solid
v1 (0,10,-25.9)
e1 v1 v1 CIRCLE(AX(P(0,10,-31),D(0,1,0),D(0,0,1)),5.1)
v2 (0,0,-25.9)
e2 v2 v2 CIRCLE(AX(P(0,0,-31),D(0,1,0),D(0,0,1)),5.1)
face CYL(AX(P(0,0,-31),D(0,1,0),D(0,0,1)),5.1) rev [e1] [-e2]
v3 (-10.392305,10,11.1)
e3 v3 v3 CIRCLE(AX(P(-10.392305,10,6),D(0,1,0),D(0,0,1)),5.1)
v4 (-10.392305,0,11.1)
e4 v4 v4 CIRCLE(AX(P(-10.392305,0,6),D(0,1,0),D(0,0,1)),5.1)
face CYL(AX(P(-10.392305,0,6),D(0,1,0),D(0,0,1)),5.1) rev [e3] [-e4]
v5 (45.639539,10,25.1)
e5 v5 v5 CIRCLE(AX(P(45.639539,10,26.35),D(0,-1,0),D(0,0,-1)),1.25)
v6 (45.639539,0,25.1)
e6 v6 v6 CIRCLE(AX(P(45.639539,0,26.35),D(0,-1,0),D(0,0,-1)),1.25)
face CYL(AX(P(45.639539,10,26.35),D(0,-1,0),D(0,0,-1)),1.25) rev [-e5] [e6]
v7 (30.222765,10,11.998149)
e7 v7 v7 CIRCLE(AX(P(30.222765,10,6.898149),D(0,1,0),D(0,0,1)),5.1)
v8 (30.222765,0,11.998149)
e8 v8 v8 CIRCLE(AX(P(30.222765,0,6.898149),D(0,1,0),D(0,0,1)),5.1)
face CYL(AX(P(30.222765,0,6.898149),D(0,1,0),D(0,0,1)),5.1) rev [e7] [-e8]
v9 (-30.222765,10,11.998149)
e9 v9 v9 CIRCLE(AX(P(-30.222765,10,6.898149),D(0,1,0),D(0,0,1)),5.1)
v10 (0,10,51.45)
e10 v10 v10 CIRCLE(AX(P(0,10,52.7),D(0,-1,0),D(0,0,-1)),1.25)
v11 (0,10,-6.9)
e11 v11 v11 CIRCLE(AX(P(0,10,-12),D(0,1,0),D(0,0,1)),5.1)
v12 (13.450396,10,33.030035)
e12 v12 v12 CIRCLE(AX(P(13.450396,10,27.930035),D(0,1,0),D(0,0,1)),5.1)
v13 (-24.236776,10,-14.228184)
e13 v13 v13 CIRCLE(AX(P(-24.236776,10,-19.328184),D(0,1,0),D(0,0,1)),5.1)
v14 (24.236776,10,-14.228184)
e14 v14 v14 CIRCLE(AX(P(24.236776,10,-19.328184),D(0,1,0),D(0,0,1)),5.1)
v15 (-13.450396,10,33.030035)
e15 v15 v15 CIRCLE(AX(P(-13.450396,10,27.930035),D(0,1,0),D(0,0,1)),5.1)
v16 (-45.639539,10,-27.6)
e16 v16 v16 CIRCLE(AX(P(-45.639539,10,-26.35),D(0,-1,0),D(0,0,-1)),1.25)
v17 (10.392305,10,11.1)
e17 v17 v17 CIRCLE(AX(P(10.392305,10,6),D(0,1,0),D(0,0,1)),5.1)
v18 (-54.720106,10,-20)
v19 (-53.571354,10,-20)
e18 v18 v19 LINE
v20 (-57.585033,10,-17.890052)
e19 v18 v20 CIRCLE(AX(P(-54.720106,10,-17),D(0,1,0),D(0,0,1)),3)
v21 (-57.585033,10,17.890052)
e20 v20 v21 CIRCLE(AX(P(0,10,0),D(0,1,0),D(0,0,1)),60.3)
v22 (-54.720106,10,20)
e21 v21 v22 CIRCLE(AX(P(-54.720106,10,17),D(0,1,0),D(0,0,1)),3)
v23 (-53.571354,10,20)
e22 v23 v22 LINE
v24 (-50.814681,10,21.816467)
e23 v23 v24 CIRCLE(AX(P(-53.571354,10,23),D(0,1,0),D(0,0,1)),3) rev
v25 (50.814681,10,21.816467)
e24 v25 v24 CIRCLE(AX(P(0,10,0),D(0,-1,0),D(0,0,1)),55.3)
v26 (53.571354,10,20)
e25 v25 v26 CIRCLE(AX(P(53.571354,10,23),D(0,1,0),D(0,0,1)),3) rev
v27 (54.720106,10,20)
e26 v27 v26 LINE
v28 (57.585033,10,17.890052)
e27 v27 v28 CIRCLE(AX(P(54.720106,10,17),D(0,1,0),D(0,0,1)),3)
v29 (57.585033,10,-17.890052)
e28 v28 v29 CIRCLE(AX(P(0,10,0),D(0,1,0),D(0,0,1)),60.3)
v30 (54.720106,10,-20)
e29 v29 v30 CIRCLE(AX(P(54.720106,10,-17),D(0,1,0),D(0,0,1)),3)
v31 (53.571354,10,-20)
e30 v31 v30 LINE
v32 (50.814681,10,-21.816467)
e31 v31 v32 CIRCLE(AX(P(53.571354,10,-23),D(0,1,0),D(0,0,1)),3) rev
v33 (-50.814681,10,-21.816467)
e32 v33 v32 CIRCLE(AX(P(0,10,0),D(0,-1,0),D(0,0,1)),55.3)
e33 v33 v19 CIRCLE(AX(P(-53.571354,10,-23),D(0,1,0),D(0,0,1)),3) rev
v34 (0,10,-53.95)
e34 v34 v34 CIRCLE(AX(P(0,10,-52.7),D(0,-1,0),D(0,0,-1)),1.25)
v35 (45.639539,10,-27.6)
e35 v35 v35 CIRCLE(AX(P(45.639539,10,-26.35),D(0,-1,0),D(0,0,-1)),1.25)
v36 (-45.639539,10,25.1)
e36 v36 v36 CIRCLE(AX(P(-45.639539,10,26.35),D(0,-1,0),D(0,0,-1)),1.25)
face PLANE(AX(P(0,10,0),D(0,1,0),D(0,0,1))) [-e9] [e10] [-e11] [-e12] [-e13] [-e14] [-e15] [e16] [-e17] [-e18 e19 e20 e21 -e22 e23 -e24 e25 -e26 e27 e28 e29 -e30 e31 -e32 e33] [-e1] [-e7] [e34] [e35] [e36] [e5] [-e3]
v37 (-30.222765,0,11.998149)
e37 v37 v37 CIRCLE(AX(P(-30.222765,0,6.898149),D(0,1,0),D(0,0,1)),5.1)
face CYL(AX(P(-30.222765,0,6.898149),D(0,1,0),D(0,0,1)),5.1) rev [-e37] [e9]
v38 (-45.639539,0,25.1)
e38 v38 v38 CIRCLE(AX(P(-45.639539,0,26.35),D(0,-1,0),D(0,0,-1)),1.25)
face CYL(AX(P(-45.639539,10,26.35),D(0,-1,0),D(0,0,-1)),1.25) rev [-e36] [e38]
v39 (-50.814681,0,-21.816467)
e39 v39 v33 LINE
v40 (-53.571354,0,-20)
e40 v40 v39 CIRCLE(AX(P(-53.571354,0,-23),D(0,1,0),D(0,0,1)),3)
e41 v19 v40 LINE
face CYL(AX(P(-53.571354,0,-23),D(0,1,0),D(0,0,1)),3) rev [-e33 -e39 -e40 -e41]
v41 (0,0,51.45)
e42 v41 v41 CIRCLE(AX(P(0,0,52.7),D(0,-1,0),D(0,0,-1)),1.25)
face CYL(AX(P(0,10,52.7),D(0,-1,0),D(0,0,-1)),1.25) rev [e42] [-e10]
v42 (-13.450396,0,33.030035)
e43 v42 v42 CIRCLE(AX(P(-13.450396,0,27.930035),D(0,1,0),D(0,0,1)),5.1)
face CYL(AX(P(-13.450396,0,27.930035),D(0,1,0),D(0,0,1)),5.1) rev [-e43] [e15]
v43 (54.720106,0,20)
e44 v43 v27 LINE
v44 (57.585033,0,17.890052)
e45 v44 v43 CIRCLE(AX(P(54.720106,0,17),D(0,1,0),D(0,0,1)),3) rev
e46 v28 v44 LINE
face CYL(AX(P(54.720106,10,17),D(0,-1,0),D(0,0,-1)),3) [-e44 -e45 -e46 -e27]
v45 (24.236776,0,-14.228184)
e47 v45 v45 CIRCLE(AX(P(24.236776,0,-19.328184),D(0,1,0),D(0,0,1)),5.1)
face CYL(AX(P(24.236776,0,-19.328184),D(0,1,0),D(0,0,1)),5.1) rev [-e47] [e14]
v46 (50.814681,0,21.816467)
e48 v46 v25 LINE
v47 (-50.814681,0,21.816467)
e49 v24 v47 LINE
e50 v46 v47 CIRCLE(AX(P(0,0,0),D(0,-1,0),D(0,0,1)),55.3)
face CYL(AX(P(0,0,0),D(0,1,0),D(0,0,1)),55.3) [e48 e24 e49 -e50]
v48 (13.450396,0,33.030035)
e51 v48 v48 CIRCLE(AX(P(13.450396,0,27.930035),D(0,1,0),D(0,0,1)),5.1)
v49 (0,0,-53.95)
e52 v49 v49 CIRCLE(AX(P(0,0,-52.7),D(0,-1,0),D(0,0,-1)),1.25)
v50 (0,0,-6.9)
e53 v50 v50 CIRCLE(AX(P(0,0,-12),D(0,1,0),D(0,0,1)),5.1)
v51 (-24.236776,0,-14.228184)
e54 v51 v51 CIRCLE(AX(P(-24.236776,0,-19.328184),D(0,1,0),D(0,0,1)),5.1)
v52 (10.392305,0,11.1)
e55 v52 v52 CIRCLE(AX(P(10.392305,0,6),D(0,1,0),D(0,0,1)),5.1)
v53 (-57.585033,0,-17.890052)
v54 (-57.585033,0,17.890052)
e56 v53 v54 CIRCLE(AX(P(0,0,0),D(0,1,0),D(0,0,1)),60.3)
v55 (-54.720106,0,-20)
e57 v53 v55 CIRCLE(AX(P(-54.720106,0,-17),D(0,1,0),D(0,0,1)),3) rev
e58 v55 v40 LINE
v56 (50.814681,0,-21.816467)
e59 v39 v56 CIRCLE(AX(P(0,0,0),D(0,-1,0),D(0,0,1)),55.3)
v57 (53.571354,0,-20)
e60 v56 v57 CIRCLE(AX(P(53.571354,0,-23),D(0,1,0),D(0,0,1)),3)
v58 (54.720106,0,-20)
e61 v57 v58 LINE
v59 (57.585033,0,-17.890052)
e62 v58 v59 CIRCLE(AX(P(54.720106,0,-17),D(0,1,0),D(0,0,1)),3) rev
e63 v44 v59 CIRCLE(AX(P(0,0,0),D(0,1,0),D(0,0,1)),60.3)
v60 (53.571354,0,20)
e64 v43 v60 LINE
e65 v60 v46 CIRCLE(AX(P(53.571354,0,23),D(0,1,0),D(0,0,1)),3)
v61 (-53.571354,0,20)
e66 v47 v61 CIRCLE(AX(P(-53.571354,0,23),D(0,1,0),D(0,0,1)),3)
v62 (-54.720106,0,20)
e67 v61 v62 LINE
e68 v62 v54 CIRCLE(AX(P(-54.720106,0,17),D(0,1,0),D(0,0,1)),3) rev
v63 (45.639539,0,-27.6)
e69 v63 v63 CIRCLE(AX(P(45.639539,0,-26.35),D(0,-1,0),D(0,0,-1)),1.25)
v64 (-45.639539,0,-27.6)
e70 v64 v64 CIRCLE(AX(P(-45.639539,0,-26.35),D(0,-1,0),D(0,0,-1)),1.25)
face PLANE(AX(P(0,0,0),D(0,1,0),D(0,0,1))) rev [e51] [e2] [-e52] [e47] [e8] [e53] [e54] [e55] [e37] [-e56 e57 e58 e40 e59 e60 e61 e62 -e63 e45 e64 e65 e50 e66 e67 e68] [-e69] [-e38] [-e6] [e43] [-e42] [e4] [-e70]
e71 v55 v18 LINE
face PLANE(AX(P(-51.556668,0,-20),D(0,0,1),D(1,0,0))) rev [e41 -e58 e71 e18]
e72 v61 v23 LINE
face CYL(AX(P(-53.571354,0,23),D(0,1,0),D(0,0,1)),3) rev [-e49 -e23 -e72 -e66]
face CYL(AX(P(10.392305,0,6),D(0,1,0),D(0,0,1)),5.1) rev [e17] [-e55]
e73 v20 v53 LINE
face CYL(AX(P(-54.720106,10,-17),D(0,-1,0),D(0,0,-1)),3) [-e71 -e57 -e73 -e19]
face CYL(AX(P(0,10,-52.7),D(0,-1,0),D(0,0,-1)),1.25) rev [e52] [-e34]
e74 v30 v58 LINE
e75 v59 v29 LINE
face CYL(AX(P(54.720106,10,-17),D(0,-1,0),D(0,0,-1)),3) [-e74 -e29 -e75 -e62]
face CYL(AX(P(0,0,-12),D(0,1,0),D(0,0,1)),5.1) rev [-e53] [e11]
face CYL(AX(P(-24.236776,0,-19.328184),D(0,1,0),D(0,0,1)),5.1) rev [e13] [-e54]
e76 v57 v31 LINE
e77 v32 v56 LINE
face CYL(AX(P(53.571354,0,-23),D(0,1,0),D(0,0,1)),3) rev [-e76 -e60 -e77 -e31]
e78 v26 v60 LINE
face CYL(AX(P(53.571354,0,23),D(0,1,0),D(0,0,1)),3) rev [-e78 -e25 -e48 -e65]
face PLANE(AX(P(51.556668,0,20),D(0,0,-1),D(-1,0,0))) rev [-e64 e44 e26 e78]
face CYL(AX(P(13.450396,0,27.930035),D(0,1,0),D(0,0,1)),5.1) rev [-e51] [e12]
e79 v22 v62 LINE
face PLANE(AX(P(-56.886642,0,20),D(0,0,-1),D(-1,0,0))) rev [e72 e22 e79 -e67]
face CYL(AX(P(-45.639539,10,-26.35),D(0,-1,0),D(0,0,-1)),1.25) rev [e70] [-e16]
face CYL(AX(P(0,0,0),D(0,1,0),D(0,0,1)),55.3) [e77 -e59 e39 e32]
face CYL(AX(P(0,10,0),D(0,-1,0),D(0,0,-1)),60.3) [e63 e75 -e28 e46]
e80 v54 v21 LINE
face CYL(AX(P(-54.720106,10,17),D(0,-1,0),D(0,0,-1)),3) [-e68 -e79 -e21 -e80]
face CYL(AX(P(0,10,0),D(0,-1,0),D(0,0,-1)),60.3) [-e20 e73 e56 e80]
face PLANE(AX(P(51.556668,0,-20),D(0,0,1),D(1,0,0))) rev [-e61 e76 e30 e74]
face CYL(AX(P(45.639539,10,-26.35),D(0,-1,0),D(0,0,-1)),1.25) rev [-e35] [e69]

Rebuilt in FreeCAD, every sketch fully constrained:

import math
import FreeCAD as App
import Part
import Sketcher


def edges_at(feature, points):
    """Names of the edges that pass closest to the given points."""
    edges = feature.Shape.Edges
    near = lambda p: min(range(len(edges)), key=lambda i: edges[i].distToShape(Part.Vertex(*p))[0])
    return sorted({f"Edge{near(p) + 1}" for p in points})

doc = App.newDocument("Part")
params = doc.addObject("Spreadsheet::Sheet", "Params")
for row, (alias, value) in enumerate([
    ("sketch1_diameter", "120.6 mm"),
    ("pad1_length", "10 mm"),
    ("sketch2_radius", "55.3 mm"),
    ("sketch2_radius2", "60.3 mm"),
    ("fillet_radius", "3 mm"),
    ("sketch3_diameter", "2.5 mm"),
    ("sketch4_diameter", "10.2 mm"),
    ("sketch5_diameter", "10.2 mm"),
], start=1):
    params.set(f"A{row}", alias)
    params.set(f"B{row}", "=" + value)
    params.setAlias(f"B{row}", alias)

body = doc.addObject("PartDesign::Body", "Body")

# Sketch on XZ plane
sketch1 = doc.addObject("Sketcher::SketchObject", "Sketch")
body.addObject(sketch1)
sketch1.AttachmentSupport = (doc.XZ_Plane, [""])
sketch1.MapMode = "FlatFace"
sketch1.addGeometry(Part.Circle(App.Vector(0, 0, 0), App.Vector(0, 0, 1), 60.3), False)
sketch1.addConstraint(Sketcher.Constraint("Coincident", 0, 3, -1, 1))
sketch1.addConstraint(Sketcher.Constraint("Diameter", 0, 120.6))
sketch1.setExpression("Constraints[1]", "Params.sketch1_diameter")
pad1 = doc.addObject("PartDesign::Pad", "Pad")
body.addObject(pad1)
pad1.Profile = sketch1
pad1.setExpression("Length", "Params.pad1_length")
pad1.Reversed = True

# Sketch on XZ plane
sketch2 = doc.addObject("Sketcher::SketchObject", "Sketch001")
body.addObject(sketch2)
sketch2.AttachmentSupport = (doc.XZ_Plane, [""])
sketch2.MapMode = "FlatFace"
sketch2.AttachmentOffset = App.Placement(App.Vector(0, 0, -10), App.Rotation())
sketch2.addGeometry(Part.LineSegment(App.Vector(-56.886642, -20, 0), App.Vector(-51.556668, -20, 0)), False)
sketch2.addGeometry(Part.ArcOfCircle(Part.Circle(App.Vector(0, 0, 0), App.Vector(0, 0, 1), 55.3), math.radians(-158.797598), math.radians(-21.202402)), False)
sketch2.addGeometry(Part.LineSegment(App.Vector(51.556668, -20, 0), App.Vector(56.886642, -20, 0)), False)
sketch2.addGeometry(Part.ArcOfCircle(Part.Circle(App.Vector(0, 0, 0), App.Vector(0, 0, 1), 60.3), math.radians(-160.62953), math.radians(-19.37047)), False)
sketch2.addGeometry(Part.LineSegment(App.Vector(-51.556668, 20, 0), App.Vector(-56.886642, 20, 0)), False)
sketch2.addGeometry(Part.ArcOfCircle(Part.Circle(App.Vector(0, 0, 0), App.Vector(0, 0, 1), 60.3), math.radians(19.37047), math.radians(160.62953)), False)
sketch2.addGeometry(Part.LineSegment(App.Vector(56.886642, 20, 0), App.Vector(51.556668, 20, 0)), False)
sketch2.addGeometry(Part.ArcOfCircle(Part.Circle(App.Vector(0, 0, 0), App.Vector(0, 0, 1), 55.3), math.radians(21.202402), math.radians(158.797598)), False)
sketch2.addConstraint(Sketcher.Constraint("Coincident", 0, 2, 1, 1))
sketch2.addConstraint(Sketcher.Constraint("Coincident", 1, 2, 2, 1))
sketch2.addConstraint(Sketcher.Constraint("Coincident", 2, 2, 3, 2))
sketch2.addConstraint(Sketcher.Constraint("Coincident", 3, 1, 0, 1))
sketch2.addConstraint(Sketcher.Constraint("Coincident", 4, 2, 5, 2))
sketch2.addConstraint(Sketcher.Constraint("Coincident", 5, 1, 6, 1))
sketch2.addConstraint(Sketcher.Constraint("Coincident", 6, 2, 7, 1))
sketch2.addConstraint(Sketcher.Constraint("Coincident", 7, 2, 4, 1))
sketch2.addConstraint(Sketcher.Constraint("Horizontal", 0))
sketch2.addConstraint(Sketcher.Constraint("Horizontal", 2))
sketch2.addConstraint(Sketcher.Constraint("Horizontal", 4))
sketch2.addConstraint(Sketcher.Constraint("Horizontal", 6))
sketch2.addConstraint(Sketcher.Constraint("Coincident", 1, 3, -1, 1))
sketch2.addConstraint(Sketcher.Constraint("Coincident", 3, 3, -1, 1))
sketch2.addConstraint(Sketcher.Constraint("Coincident", 5, 3, -1, 1))
sketch2.addConstraint(Sketcher.Constraint("Coincident", 7, 3, -1, 1))
sketch2.addConstraint(Sketcher.Constraint("Equal", 3, 5))
sketch2.addConstraint(Sketcher.Constraint("Equal", 1, 7))
sketch2.addConstraint(Sketcher.Constraint("Horizontal", 0, 2, 1, 2))
sketch2.addConstraint(Sketcher.Constraint("Horizontal", 4, 2, 5, 1))
sketch2.addConstraint(Sketcher.Constraint("Vertical", 3, 1, 4, 2))
sketch2.addConstraint(Sketcher.Constraint("Radius", 1, 55.3))
sketch2.addConstraint(Sketcher.Constraint("Radius", 3, 60.3))
sketch2.addConstraint(Sketcher.Constraint("DistanceY", 0, 2, -1, 1, 20.0))
sketch2.setExpression("Constraints[21]", "Params.sketch2_radius")
sketch2.setExpression("Constraints[22]", "Params.sketch2_radius2")
pocket1 = doc.addObject("PartDesign::Pocket", "Pocket")
body.addObject(pocket1)
pocket1.Profile = sketch2
pocket1.Type = "ThroughAll"
pocket1.Reversed = True
doc.recompute()

fillet = doc.addObject("PartDesign::Fillet", "Fillet")
body.addObject(fillet)
fillet.Base = (pocket1, edges_at(pocket1, [
    (51.557, 5, -20),
    (-51.557, 5, -20),
    (-56.887, 5, -20),
    (56.887, 5, -20),
    (-51.557, 5, 20),
    (51.557, 5, 20),
    (56.887, 5, 20),
    (-56.887, 5, 20),
]))
fillet.setExpression("Radius", "Params.fillet_radius")

# Sketch on XZ plane
sketch3 = doc.addObject("Sketcher::SketchObject", "Sketch002")
body.addObject(sketch3)
sketch3.AttachmentSupport = (doc.XZ_Plane, [""])
sketch3.MapMode = "FlatFace"
sketch3.addGeometry(Part.Circle(App.Vector(0, -52.7, 0), App.Vector(0, 0, 1), 1.25), False)
sketch3.addGeometry(Part.Circle(App.Vector(-45.639539, -26.35, 0), App.Vector(0, 0, 1), 1.25), False)
sketch3.addGeometry(Part.Circle(App.Vector(-45.639539, 26.35, 0), App.Vector(0, 0, 1), 1.25), False)
sketch3.addGeometry(Part.Circle(App.Vector(0, 52.7, 0), App.Vector(0, 0, 1), 1.25), False)
sketch3.addGeometry(Part.Circle(App.Vector(45.639539, 26.35, 0), App.Vector(0, 0, 1), 1.25), False)
sketch3.addGeometry(Part.Circle(App.Vector(45.639539, -26.35, 0), App.Vector(0, 0, 1), 1.25), False)
sketch3.addConstraint(Sketcher.Constraint("Equal", 0, 1))
sketch3.addConstraint(Sketcher.Constraint("Equal", 1, 2))
sketch3.addConstraint(Sketcher.Constraint("Equal", 2, 3))
sketch3.addConstraint(Sketcher.Constraint("Equal", 3, 4))
sketch3.addConstraint(Sketcher.Constraint("Equal", 4, 5))
sketch3.addConstraint(Sketcher.Constraint("Symmetric", 0, 3, 3, 3, -1, 1))
sketch3.addConstraint(Sketcher.Constraint("Symmetric", 1, 3, 4, 3, -1, 1))
sketch3.addConstraint(Sketcher.Constraint("Symmetric", 2, 3, 5, 3, -1, 1))
sketch3.addConstraint(Sketcher.Constraint("Symmetric", 2, 3, 4, 3, -2))
sketch3.addConstraint(Sketcher.Constraint("PointOnObject", 0, 3, -2))
sketch3.addConstraint(Sketcher.Constraint("Diameter", 0, 2.5))
sketch3.addConstraint(Sketcher.Constraint("DistanceY", 0, 3, -1, 1, 52.7))
sketch3.addConstraint(Sketcher.Constraint("DistanceY", 1, 3, 2, 3, 52.7))
sketch3.addConstraint(Sketcher.Constraint("DistanceX", 1, 3, -1, 1, 45.639539))
sketch3.setExpression("Constraints[10]", "Params.sketch3_diameter")
pocket2 = doc.addObject("PartDesign::Pocket", "Pocket001")
body.addObject(pocket2)
pocket2.Profile = sketch3
pocket2.Type = "ThroughAll"

# Sketch on XZ plane
sketch4 = doc.addObject("Sketcher::SketchObject", "Sketch003")
body.addObject(sketch4)
sketch4.AttachmentSupport = (doc.XZ_Plane, [""])
sketch4.MapMode = "FlatFace"
sketch4.AttachmentOffset = App.Placement(App.Vector(0, 0, -10), App.Rotation())
sketch4.addGeometry(Part.Circle(App.Vector(0, -31, 0), App.Vector(0, 0, 1), 5.1), False)
sketch4.addGeometry(Part.Circle(App.Vector(24.236776, -19.328184, 0), App.Vector(0, 0, 1), 5.1), False)
sketch4.addGeometry(Part.Circle(App.Vector(30.222765, 6.898149, 0), App.Vector(0, 0, 1), 5.1), False)
sketch4.addGeometry(Part.Circle(App.Vector(13.450396, 27.930035, 0), App.Vector(0, 0, 1), 5.1), False)
sketch4.addGeometry(Part.Circle(App.Vector(-13.450396, 27.930035, 0), App.Vector(0, 0, 1), 5.1), False)
sketch4.addGeometry(Part.Circle(App.Vector(-30.222765, 6.898149, 0), App.Vector(0, 0, 1), 5.1), False)
sketch4.addGeometry(Part.Circle(App.Vector(-24.236776, -19.328184, 0), App.Vector(0, 0, 1), 5.1), False)
sketch4.addConstraint(Sketcher.Constraint("Equal", 0, 1))
sketch4.addConstraint(Sketcher.Constraint("Equal", 1, 2))
sketch4.addConstraint(Sketcher.Constraint("Equal", 2, 3))
sketch4.addConstraint(Sketcher.Constraint("Equal", 3, 4))
sketch4.addConstraint(Sketcher.Constraint("Equal", 4, 5))
sketch4.addConstraint(Sketcher.Constraint("Equal", 5, 6))
sketch4.addConstraint(Sketcher.Constraint("Symmetric", 3, 3, 4, 3, -2))
sketch4.addConstraint(Sketcher.Constraint("Symmetric", 2, 3, 5, 3, -2))
sketch4.addConstraint(Sketcher.Constraint("Symmetric", 1, 3, 6, 3, -2))
sketch4.addConstraint(Sketcher.Constraint("PointOnObject", 0, 3, -2))
sketch4.addConstraint(Sketcher.Constraint("Diameter", 0, 10.2))
sketch4.addConstraint(Sketcher.Constraint("DistanceY", 0, 3, -1, 1, 31.0))
sketch4.addConstraint(Sketcher.Constraint("DistanceY", -1, 1, 2, 3, 6.898149))
sketch4.addConstraint(Sketcher.Constraint("DistanceX", 1, 3, 2, 3, 5.985989))
sketch4.addConstraint(Sketcher.Constraint("DistanceX", 3, 3, 2, 3, 16.772369))
sketch4.addConstraint(Sketcher.Constraint("DistanceY", 1, 3, 3, 3, 47.258219))
sketch4.addConstraint(Sketcher.Constraint("DistanceX", 4, 3, 3, 3, 26.900792))
sketch4.addConstraint(Sketcher.Constraint("DistanceY", 1, 3, -1, 1, 19.328184))
sketch4.setExpression("Constraints[10]", "Params.sketch4_diameter")
pocket3 = doc.addObject("PartDesign::Pocket", "Pocket002")
body.addObject(pocket3)
pocket3.Profile = sketch4
pocket3.Type = "ThroughAll"
pocket3.Reversed = True

# Sketch on XZ plane
sketch5 = doc.addObject("Sketcher::SketchObject", "Sketch004")
body.addObject(sketch5)
sketch5.AttachmentSupport = (doc.XZ_Plane, [""])
sketch5.MapMode = "FlatFace"
sketch5.AttachmentOffset = App.Placement(App.Vector(0, 0, -10), App.Rotation())
sketch5.addGeometry(Part.Circle(App.Vector(0, -12, 0), App.Vector(0, 0, 1), 5.1), False)
sketch5.addGeometry(Part.Circle(App.Vector(10.392305, 6, 0), App.Vector(0, 0, 1), 5.1), False)
sketch5.addGeometry(Part.Circle(App.Vector(-10.392305, 6, 0), App.Vector(0, 0, 1), 5.1), False)
sketch5.addConstraint(Sketcher.Constraint("Equal", 0, 1))
sketch5.addConstraint(Sketcher.Constraint("Equal", 1, 2))
sketch5.addConstraint(Sketcher.Constraint("Symmetric", 1, 3, 2, 3, -2))
sketch5.addConstraint(Sketcher.Constraint("PointOnObject", 0, 3, -2))
sketch5.addConstraint(Sketcher.Constraint("Diameter", 0, 10.2))
sketch5.addConstraint(Sketcher.Constraint("DistanceY", 0, 3, -1, 1, 12.0))
sketch5.addConstraint(Sketcher.Constraint("DistanceY", -1, 1, 1, 3, 6.0))
sketch5.addConstraint(Sketcher.Constraint("DistanceX", 2, 3, 1, 3, 20.78461))
sketch5.setExpression("Constraints[4]", "Params.sketch5_diameter")
pocket4 = doc.addObject("PartDesign::Pocket", "Pocket003")
body.addObject(pocket4)
pocket4.Profile = sketch5
pocket4.Type = "ThroughAll"
pocket4.Reversed = True

doc.recompute()
